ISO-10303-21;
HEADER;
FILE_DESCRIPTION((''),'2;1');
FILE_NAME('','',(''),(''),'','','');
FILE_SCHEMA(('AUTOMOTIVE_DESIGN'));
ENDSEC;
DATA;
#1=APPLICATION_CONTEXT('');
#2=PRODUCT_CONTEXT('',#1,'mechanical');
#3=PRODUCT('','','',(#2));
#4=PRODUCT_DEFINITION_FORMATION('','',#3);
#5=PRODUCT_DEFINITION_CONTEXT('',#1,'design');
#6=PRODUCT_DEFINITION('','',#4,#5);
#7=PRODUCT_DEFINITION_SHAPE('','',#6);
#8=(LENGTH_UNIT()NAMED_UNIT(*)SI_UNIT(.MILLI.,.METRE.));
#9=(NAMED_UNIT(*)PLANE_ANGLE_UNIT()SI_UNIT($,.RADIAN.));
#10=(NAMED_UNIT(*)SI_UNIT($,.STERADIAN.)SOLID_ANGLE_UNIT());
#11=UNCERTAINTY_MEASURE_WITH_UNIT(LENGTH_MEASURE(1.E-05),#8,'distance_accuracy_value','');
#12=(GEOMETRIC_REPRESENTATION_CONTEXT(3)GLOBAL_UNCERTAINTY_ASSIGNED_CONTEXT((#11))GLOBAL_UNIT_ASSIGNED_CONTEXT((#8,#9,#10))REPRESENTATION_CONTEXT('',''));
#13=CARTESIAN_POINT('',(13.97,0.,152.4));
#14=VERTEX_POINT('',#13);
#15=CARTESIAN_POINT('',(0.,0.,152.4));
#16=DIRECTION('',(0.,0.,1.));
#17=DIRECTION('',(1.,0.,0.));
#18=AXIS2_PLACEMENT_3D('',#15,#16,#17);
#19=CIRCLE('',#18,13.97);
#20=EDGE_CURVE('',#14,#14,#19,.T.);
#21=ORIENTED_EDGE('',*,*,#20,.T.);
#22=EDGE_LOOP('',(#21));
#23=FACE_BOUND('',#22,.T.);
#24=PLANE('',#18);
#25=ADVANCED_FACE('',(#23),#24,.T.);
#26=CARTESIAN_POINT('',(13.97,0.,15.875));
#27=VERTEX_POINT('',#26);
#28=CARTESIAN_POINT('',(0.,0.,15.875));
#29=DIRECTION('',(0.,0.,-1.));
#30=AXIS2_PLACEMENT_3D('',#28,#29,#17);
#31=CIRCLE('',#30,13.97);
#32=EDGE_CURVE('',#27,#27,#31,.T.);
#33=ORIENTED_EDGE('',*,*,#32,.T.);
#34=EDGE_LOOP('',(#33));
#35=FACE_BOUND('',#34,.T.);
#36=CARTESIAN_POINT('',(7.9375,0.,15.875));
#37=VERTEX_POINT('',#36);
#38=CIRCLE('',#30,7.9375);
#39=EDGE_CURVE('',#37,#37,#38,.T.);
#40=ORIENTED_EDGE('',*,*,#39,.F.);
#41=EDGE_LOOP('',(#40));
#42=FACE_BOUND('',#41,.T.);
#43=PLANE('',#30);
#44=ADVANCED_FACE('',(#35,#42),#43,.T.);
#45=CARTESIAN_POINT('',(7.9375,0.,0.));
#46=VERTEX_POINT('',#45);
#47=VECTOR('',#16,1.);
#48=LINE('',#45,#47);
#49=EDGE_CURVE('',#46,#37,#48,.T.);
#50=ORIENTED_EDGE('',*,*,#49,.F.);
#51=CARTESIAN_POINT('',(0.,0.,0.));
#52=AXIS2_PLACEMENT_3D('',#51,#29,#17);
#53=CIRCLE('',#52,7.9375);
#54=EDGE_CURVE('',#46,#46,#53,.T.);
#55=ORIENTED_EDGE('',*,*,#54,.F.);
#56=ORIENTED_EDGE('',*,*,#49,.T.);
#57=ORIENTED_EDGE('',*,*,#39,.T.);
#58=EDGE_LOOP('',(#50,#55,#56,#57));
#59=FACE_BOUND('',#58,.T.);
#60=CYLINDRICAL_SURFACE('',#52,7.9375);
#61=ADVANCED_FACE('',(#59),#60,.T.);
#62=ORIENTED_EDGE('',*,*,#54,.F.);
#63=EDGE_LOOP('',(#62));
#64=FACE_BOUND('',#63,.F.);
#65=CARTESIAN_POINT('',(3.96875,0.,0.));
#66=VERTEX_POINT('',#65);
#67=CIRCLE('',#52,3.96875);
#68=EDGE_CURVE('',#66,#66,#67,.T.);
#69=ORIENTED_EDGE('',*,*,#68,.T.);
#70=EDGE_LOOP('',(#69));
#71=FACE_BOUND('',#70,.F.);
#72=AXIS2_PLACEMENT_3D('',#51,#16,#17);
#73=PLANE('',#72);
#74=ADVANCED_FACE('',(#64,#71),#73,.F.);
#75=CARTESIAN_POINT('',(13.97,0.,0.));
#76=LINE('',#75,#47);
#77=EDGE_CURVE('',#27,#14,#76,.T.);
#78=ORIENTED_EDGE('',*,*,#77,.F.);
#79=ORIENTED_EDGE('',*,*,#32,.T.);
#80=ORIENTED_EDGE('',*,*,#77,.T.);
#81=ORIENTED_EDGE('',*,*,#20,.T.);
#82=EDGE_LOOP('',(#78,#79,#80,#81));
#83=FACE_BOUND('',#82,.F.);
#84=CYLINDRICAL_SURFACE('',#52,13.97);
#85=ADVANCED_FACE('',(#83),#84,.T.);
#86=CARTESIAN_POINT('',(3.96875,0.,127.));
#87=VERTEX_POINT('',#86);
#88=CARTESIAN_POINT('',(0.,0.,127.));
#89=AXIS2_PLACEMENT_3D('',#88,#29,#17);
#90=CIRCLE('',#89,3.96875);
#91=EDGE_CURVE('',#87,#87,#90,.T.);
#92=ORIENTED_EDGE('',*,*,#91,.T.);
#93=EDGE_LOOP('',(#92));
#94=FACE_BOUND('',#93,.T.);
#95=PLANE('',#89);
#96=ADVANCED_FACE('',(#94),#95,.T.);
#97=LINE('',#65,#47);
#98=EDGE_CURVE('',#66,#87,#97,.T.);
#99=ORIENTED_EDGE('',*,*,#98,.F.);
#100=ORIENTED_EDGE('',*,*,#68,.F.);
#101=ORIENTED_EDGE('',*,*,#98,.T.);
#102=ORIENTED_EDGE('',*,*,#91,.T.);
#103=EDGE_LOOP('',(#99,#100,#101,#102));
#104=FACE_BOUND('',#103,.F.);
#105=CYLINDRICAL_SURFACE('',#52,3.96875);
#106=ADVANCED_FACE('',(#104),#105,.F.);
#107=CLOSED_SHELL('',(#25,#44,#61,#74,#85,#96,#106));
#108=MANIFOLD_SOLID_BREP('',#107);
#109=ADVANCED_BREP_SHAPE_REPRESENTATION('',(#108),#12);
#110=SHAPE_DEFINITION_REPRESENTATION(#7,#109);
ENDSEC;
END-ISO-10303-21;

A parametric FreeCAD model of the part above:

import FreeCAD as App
import Part
import Sketcher

V = App.Vector
Q = App.Units.Quantity

doc = App.newDocument("Part")
body = doc.addObject("PartDesign::Body", "Body")

sketch1 = body.newObject("Sketcher::SketchObject", "Sketch")
sketch1.AttachmentSupport = (doc.getObject("XY_Plane"), [""])
sketch1.MapMode = "FlatFace"
sketch1.addGeometry(Part.Circle(V(0, 0, 0), V(0, 0, 1), 14), False)
sketch1.addConstraint([
    Sketcher.Constraint("Coincident", 0, 3, -1, 1),
    Sketcher.Constraint("Diameter", 0, Q("1.1 in")),
])
pad1 = body.newObject("PartDesign::Pad", "Pad")
pad1.Profile = sketch1
pad1.Length = Q("6 in")

sketch2 = body.newObject("Sketcher::SketchObject", "Sketch001")
sketch2.AttachmentSupport = (doc.getObject("XY_Plane"), [""])
sketch2.MapMode = "FlatFace"
sketch2.addGeometry([
    Part.Circle(V(0, 0, 0), V(0, 0, 1), 14),
    Part.Circle(V(0, 0, 0), V(0, 0, 1), 8),
], False)
sketch2.addConstraint([
    Sketcher.Constraint("Coincident", 0, 3, -1, 1),
    Sketcher.Constraint("Coincident", 1, 3, -1, 1),
    Sketcher.Constraint("Diameter", 0, Q("1.1 in")),
    Sketcher.Constraint("Diameter", 1, Q("0.625 in")),
])
pocket1 = body.newObject("PartDesign::Pocket", "Pocket")
pocket1.Profile = sketch2
pocket1.Length = Q("0.625 in")
pocket1.Reversed = True

sketch3 = body.newObject("Sketcher::SketchObject", "Sketch002")
sketch3.AttachmentSupport = (doc.getObject("XY_Plane"), [""])
sketch3.MapMode = "FlatFace"
sketch3.addGeometry(Part.Circle(V(0, 0, 0), V(0, 0, 1), 4), False)
sketch3.addConstraint([
    Sketcher.Constraint("Coincident", 0, 3, -1, 1),
    Sketcher.Constraint("Diameter", 0, Q("0.3125 in")),
])
pocket2 = body.newObject("PartDesign::Pocket", "Pocket001")
pocket2.Profile = sketch3
pocket2.Length = Q("5 in")
pocket2.Reversed = True

doc.recompute()
